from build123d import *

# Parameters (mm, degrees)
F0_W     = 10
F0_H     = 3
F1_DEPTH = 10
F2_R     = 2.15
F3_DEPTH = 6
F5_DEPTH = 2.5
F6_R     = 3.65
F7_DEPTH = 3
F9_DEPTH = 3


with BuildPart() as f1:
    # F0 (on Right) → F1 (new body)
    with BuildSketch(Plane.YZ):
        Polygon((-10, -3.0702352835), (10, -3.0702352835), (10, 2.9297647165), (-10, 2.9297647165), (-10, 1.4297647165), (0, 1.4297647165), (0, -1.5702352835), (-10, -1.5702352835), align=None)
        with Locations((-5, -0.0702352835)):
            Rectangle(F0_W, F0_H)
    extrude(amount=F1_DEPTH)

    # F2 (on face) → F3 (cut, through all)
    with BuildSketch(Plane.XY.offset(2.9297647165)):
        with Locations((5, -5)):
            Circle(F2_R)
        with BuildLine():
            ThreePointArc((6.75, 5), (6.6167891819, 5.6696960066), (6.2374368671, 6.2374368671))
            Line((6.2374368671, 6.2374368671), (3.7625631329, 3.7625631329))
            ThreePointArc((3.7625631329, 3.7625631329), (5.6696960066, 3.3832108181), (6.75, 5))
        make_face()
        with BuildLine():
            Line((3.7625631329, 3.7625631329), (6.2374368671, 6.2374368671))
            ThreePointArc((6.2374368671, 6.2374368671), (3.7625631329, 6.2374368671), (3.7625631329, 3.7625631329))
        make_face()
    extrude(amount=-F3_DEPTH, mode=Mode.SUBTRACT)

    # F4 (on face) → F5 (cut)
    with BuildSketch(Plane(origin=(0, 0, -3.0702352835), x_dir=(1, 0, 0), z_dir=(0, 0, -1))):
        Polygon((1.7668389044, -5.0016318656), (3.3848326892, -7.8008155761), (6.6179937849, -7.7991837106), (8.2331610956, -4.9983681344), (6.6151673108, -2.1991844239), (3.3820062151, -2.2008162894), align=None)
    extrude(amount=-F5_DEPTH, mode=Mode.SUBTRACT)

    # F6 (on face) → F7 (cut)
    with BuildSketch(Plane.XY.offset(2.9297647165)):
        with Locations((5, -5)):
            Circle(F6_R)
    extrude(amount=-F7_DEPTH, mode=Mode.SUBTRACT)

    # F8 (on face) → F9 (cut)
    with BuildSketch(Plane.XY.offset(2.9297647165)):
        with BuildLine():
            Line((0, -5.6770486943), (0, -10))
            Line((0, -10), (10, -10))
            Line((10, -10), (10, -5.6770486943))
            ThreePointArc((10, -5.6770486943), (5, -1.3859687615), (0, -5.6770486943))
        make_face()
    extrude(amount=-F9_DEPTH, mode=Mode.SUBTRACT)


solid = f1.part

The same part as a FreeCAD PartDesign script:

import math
import FreeCAD as App
import Part
import Sketcher

doc = App.newDocument("Part")
body = doc.addObject("PartDesign::Body", "Body")

sketch1 = body.newObject("Sketcher::SketchObject", "Sketch")
sketch1.AttachmentSupport = (doc.getObject("YZ_Plane"), [""])
sketch1.MapMode = "FlatFace"
sketch1.addGeometry([
    Part.LineSegment(App.Vector(-10, -3.070235, 0), App.Vector(10, -3.070235, 0)),
    Part.LineSegment(App.Vector(10, -3.070235, 0), App.Vector(10, 2.929765, 0)),
    Part.LineSegment(App.Vector(10, 2.929765, 0), App.Vector(-10, 2.929765, 0)),
    Part.LineSegment(App.Vector(-10, 2.929765, 0), App.Vector(-10, -3.070235, 0)),
], False)
sketch1.addConstraint([
    Sketcher.Constraint("Coincident", 0, 2, 1, 1),
    Sketcher.Constraint("Coincident", 1, 2, 2, 1),
    Sketcher.Constraint("Coincident", 2, 2, 3, 1),
    Sketcher.Constraint("Coincident", 3, 2, 0, 1),
    Sketcher.Constraint("Horizontal", 0),
    Sketcher.Constraint("Vertical", 1),
    Sketcher.Constraint("Horizontal", 2),
    Sketcher.Constraint("Vertical", 3),
    Sketcher.Constraint("DistanceX", 0, 1, 0, 2, 20.0),
    Sketcher.Constraint("DistanceY", 1, 1, 1, 2, 6.0),
    Sketcher.Constraint("DistanceX", -1, 1, 0, 2, 10.0),
    Sketcher.Constraint("DistanceY", 0, 2, -1, 1, 3.070235),
])
pad1 = body.newObject("PartDesign::Pad", "Pad")
pad1.Profile = sketch1
pad1.Length = 10

sketch2 = body.newObject("Sketcher::SketchObject", "Sketch001")
sketch2.AttachmentSupport = (doc.getObject("XY_Plane"), [""])
sketch2.MapMode = "FlatFace"
sketch2.AttachmentOffset = App.Placement(App.Vector(0, 0, 2.929765), App.Rotation())
sketch2.addGeometry([
    Part.Circle(App.Vector(5, -5, 0), App.Vector(0, 0, 1), 2.15),
    Part.ArcOfCircle(Part.Circle(App.Vector(5, 5, 0), App.Vector(0, 0, 1), 1.75), math.radians(0), math.radians(45)),
    Part.ArcOfCircle(Part.Circle(App.Vector(5, 5, 0), App.Vector(0, 0, 1), 1.75), math.radians(45), math.radians(225)),
    Part.ArcOfCircle(Part.Circle(App.Vector(5, 5, 0), App.Vector(0, 0, 1), 1.75), math.radians(-135), math.radians(0)),
], False)
sketch2.addConstraint([
    Sketcher.Constraint("Tangent", 1, 2, 2, 1),
    Sketcher.Constraint("Tangent", 2, 2, 3, 1),
    Sketcher.Constraint("Tangent", 3, 2, 1, 1),
    Sketcher.Constraint("Symmetric", 0, 3, 1, 3, -1),
    Sketcher.Constraint("Horizontal", 2, 3, 3, 2),
    Sketcher.Constraint("Diameter", 0, 4.3),
    Sketcher.Constraint("Radius", 1, 1.75),
    Sketcher.Constraint("DistanceX", -1, 1, 0, 3, 5.0),
    Sketcher.Constraint("DistanceY", 0, 3, -1, 1, 5.0),
    Sketcher.Constraint("DistanceX", -1, 1, 1, 2, 6.237437),
    Sketcher.Constraint("DistanceX", -1, 1, 2, 2, 3.762563),
])
pocket1 = body.newObject("PartDesign::Pocket", "Pocket")
pocket1.Profile = sketch2
pocket1.Type = "ThroughAll"

sketch3 = body.newObject("Sketcher::SketchObject", "Sketch002")
sketch3.AttachmentSupport = (doc.getObject("XY_Plane"), [""])
sketch3.MapMode = "FlatFace"
sketch3.AttachmentOffset = App.Placement(App.Vector(0, 0, -3.070235), App.Rotation())
sketch3.addGeometry([
    Part.LineSegment(App.Vector(1.766839, 5.001632, 0), App.Vector(3.384833, 7.800816, 0)),
    Part.LineSegment(App.Vector(3.384833, 7.800816, 0), App.Vector(6.617994, 7.799184, 0)),
    Part.LineSegment(App.Vector(6.617994, 7.799184, 0), App.Vector(8.233161, 4.998368, 0)),
    Part.LineSegment(App.Vector(8.233161, 4.998368, 0), App.Vector(6.615167, 2.199184, 0)),
    Part.LineSegment(App.Vector(6.615167, 2.199184, 0), App.Vector(3.382006, 2.200816, 0)),
    Part.LineSegment(App.Vector(3.382006, 2.200816, 0), App.Vector(1.766839, 5.001632, 0)),
], False)
sketch3.addConstraint([
    Sketcher.Constraint("Coincident", 0, 2, 1, 1),
    Sketcher.Constraint("Coincident", 1, 2, 2, 1),
    Sketcher.Constraint("Coincident", 2, 2, 3, 1),
    Sketcher.Constraint("Coincident", 3, 2, 4, 1),
    Sketcher.Constraint("Coincident", 4, 2, 5, 1),
    Sketcher.Constraint("Coincident", 5, 2, 0, 1),
    Sketcher.Constraint("Parallel", 0, 3),
    Sketcher.Constraint("Parallel", 1, 4),
    Sketcher.Constraint("Parallel", 2, 5),
    Sketcher.Constraint("Equal", 0, 1),
    Sketcher.Constraint("Equal", 1, 2),
    Sketcher.Constraint("Equal", 2, 3),
    Sketcher.Constraint("DistanceY", 3, 2, 1, 2, 5.599999),
    Sketcher.Constraint("Distance", 0, 3.233162),
    Sketcher.Constraint("DistanceX", -1, 1, 2, 2, 8.233161),
    Sketcher.Constraint("DistanceY", -1, 1, 2, 2, 4.998368),
    Sketcher.Constraint("DistanceY", -1, 1, 5, 2, 5.001632),
    Sketcher.Constraint("DistanceY", 1, 2, 0, 2, 0.001632),
])
pocket2 = body.newObject("PartDesign::Pocket", "Pocket001")
pocket2.Profile = sketch3
pocket2.Length = 2.5
pocket2.Reversed = True

sketch4 = body.newObject("Sketcher::SketchObject", "Sketch003")
sketch4.AttachmentSupport = (doc.getObject("XY_Plane"), [""])
sketch4.MapMode = "FlatFace"
sketch4.AttachmentOffset = App.Placement(App.Vector(0, 0, 2.929765), App.Rotation())
sketch4.addGeometry(Part.Circle(App.Vector(5, -5, 0), App.Vector(0, 0, 1), 3.65), False)
sketch4.addConstraint([
    Sketcher.Constraint("Diameter", 0, 7.3),
    Sketcher.Constraint("DistanceX", -1, 1, 0, 3, 5.0),
    Sketcher.Constraint("DistanceY", 0, 3, -1, 1, 5.0),
])
pocket3 = body.newObject("PartDesign::Pocket", "Pocket002")
pocket3.Profile = sketch4
pocket3.Length = 3

sketch5 = body.newObject("Sketcher::SketchObject", "Sketch004")
sketch5.AttachmentSupport = (doc.getObject("XY_Plane"), [""])
sketch5.MapMode = "FlatFace"
sketch5.AttachmentOffset = App.Placement(App.Vector(0, 0, 2.929765), App.Rotation())
sketch5.addGeometry([
    Part.LineSegment(App.Vector(0, -5.677049, 0), App.Vector(0, -10, 0)),
    Part.LineSegment(App.Vector(0, -10, 0), App.Vector(10, -10, 0)),
    Part.LineSegment(App.Vector(10, -10, 0), App.Vector(10, -5.677049, 0)),
    Part.ArcOfCircle(Part.Circle(App.Vector(5, -6.444528, 0), App.Vector(0, 0, 1), 5.05856), math.radians(8.726559), math.radians(171.273441)),
], False)
sketch5.addConstraint([
    Sketcher.Constraint("Coincident", 0, 2, 1, 1),
    Sketcher.Constraint("Coincident", 1, 2, 2, 1),
    Sketcher.Constraint("Coincident", 2, 2, 3, 1),
    Sketcher.Constraint("Coincident", 3, 2, 0, 1),
    Sketcher.Constraint("Vertical", 0),
    Sketcher.Constraint("Horizontal", 1),
    Sketcher.Constraint("Vertical", 2),
    Sketcher.Constraint("PointOnObject", 0, 2, -2),
    Sketcher.Constraint("Horizontal", 2, 2, 3, 2),
    Sketcher.Constraint("DistanceX", 1, 1, 1, 2, 10.0),
    Sketcher.Constraint("DistanceY", 0, 2, -1, 1, 10.0),
    Sketcher.Constraint("Radius", 3, 5.05856),
    Sketcher.Constraint("DistanceY", 0, 2, 0, 1, 4.322951),
])
pocket4 = body.newObject("PartDesign::Pocket", "Pocket003")
pocket4.Profile = sketch5
pocket4.Length = 3

doc.recompute()
